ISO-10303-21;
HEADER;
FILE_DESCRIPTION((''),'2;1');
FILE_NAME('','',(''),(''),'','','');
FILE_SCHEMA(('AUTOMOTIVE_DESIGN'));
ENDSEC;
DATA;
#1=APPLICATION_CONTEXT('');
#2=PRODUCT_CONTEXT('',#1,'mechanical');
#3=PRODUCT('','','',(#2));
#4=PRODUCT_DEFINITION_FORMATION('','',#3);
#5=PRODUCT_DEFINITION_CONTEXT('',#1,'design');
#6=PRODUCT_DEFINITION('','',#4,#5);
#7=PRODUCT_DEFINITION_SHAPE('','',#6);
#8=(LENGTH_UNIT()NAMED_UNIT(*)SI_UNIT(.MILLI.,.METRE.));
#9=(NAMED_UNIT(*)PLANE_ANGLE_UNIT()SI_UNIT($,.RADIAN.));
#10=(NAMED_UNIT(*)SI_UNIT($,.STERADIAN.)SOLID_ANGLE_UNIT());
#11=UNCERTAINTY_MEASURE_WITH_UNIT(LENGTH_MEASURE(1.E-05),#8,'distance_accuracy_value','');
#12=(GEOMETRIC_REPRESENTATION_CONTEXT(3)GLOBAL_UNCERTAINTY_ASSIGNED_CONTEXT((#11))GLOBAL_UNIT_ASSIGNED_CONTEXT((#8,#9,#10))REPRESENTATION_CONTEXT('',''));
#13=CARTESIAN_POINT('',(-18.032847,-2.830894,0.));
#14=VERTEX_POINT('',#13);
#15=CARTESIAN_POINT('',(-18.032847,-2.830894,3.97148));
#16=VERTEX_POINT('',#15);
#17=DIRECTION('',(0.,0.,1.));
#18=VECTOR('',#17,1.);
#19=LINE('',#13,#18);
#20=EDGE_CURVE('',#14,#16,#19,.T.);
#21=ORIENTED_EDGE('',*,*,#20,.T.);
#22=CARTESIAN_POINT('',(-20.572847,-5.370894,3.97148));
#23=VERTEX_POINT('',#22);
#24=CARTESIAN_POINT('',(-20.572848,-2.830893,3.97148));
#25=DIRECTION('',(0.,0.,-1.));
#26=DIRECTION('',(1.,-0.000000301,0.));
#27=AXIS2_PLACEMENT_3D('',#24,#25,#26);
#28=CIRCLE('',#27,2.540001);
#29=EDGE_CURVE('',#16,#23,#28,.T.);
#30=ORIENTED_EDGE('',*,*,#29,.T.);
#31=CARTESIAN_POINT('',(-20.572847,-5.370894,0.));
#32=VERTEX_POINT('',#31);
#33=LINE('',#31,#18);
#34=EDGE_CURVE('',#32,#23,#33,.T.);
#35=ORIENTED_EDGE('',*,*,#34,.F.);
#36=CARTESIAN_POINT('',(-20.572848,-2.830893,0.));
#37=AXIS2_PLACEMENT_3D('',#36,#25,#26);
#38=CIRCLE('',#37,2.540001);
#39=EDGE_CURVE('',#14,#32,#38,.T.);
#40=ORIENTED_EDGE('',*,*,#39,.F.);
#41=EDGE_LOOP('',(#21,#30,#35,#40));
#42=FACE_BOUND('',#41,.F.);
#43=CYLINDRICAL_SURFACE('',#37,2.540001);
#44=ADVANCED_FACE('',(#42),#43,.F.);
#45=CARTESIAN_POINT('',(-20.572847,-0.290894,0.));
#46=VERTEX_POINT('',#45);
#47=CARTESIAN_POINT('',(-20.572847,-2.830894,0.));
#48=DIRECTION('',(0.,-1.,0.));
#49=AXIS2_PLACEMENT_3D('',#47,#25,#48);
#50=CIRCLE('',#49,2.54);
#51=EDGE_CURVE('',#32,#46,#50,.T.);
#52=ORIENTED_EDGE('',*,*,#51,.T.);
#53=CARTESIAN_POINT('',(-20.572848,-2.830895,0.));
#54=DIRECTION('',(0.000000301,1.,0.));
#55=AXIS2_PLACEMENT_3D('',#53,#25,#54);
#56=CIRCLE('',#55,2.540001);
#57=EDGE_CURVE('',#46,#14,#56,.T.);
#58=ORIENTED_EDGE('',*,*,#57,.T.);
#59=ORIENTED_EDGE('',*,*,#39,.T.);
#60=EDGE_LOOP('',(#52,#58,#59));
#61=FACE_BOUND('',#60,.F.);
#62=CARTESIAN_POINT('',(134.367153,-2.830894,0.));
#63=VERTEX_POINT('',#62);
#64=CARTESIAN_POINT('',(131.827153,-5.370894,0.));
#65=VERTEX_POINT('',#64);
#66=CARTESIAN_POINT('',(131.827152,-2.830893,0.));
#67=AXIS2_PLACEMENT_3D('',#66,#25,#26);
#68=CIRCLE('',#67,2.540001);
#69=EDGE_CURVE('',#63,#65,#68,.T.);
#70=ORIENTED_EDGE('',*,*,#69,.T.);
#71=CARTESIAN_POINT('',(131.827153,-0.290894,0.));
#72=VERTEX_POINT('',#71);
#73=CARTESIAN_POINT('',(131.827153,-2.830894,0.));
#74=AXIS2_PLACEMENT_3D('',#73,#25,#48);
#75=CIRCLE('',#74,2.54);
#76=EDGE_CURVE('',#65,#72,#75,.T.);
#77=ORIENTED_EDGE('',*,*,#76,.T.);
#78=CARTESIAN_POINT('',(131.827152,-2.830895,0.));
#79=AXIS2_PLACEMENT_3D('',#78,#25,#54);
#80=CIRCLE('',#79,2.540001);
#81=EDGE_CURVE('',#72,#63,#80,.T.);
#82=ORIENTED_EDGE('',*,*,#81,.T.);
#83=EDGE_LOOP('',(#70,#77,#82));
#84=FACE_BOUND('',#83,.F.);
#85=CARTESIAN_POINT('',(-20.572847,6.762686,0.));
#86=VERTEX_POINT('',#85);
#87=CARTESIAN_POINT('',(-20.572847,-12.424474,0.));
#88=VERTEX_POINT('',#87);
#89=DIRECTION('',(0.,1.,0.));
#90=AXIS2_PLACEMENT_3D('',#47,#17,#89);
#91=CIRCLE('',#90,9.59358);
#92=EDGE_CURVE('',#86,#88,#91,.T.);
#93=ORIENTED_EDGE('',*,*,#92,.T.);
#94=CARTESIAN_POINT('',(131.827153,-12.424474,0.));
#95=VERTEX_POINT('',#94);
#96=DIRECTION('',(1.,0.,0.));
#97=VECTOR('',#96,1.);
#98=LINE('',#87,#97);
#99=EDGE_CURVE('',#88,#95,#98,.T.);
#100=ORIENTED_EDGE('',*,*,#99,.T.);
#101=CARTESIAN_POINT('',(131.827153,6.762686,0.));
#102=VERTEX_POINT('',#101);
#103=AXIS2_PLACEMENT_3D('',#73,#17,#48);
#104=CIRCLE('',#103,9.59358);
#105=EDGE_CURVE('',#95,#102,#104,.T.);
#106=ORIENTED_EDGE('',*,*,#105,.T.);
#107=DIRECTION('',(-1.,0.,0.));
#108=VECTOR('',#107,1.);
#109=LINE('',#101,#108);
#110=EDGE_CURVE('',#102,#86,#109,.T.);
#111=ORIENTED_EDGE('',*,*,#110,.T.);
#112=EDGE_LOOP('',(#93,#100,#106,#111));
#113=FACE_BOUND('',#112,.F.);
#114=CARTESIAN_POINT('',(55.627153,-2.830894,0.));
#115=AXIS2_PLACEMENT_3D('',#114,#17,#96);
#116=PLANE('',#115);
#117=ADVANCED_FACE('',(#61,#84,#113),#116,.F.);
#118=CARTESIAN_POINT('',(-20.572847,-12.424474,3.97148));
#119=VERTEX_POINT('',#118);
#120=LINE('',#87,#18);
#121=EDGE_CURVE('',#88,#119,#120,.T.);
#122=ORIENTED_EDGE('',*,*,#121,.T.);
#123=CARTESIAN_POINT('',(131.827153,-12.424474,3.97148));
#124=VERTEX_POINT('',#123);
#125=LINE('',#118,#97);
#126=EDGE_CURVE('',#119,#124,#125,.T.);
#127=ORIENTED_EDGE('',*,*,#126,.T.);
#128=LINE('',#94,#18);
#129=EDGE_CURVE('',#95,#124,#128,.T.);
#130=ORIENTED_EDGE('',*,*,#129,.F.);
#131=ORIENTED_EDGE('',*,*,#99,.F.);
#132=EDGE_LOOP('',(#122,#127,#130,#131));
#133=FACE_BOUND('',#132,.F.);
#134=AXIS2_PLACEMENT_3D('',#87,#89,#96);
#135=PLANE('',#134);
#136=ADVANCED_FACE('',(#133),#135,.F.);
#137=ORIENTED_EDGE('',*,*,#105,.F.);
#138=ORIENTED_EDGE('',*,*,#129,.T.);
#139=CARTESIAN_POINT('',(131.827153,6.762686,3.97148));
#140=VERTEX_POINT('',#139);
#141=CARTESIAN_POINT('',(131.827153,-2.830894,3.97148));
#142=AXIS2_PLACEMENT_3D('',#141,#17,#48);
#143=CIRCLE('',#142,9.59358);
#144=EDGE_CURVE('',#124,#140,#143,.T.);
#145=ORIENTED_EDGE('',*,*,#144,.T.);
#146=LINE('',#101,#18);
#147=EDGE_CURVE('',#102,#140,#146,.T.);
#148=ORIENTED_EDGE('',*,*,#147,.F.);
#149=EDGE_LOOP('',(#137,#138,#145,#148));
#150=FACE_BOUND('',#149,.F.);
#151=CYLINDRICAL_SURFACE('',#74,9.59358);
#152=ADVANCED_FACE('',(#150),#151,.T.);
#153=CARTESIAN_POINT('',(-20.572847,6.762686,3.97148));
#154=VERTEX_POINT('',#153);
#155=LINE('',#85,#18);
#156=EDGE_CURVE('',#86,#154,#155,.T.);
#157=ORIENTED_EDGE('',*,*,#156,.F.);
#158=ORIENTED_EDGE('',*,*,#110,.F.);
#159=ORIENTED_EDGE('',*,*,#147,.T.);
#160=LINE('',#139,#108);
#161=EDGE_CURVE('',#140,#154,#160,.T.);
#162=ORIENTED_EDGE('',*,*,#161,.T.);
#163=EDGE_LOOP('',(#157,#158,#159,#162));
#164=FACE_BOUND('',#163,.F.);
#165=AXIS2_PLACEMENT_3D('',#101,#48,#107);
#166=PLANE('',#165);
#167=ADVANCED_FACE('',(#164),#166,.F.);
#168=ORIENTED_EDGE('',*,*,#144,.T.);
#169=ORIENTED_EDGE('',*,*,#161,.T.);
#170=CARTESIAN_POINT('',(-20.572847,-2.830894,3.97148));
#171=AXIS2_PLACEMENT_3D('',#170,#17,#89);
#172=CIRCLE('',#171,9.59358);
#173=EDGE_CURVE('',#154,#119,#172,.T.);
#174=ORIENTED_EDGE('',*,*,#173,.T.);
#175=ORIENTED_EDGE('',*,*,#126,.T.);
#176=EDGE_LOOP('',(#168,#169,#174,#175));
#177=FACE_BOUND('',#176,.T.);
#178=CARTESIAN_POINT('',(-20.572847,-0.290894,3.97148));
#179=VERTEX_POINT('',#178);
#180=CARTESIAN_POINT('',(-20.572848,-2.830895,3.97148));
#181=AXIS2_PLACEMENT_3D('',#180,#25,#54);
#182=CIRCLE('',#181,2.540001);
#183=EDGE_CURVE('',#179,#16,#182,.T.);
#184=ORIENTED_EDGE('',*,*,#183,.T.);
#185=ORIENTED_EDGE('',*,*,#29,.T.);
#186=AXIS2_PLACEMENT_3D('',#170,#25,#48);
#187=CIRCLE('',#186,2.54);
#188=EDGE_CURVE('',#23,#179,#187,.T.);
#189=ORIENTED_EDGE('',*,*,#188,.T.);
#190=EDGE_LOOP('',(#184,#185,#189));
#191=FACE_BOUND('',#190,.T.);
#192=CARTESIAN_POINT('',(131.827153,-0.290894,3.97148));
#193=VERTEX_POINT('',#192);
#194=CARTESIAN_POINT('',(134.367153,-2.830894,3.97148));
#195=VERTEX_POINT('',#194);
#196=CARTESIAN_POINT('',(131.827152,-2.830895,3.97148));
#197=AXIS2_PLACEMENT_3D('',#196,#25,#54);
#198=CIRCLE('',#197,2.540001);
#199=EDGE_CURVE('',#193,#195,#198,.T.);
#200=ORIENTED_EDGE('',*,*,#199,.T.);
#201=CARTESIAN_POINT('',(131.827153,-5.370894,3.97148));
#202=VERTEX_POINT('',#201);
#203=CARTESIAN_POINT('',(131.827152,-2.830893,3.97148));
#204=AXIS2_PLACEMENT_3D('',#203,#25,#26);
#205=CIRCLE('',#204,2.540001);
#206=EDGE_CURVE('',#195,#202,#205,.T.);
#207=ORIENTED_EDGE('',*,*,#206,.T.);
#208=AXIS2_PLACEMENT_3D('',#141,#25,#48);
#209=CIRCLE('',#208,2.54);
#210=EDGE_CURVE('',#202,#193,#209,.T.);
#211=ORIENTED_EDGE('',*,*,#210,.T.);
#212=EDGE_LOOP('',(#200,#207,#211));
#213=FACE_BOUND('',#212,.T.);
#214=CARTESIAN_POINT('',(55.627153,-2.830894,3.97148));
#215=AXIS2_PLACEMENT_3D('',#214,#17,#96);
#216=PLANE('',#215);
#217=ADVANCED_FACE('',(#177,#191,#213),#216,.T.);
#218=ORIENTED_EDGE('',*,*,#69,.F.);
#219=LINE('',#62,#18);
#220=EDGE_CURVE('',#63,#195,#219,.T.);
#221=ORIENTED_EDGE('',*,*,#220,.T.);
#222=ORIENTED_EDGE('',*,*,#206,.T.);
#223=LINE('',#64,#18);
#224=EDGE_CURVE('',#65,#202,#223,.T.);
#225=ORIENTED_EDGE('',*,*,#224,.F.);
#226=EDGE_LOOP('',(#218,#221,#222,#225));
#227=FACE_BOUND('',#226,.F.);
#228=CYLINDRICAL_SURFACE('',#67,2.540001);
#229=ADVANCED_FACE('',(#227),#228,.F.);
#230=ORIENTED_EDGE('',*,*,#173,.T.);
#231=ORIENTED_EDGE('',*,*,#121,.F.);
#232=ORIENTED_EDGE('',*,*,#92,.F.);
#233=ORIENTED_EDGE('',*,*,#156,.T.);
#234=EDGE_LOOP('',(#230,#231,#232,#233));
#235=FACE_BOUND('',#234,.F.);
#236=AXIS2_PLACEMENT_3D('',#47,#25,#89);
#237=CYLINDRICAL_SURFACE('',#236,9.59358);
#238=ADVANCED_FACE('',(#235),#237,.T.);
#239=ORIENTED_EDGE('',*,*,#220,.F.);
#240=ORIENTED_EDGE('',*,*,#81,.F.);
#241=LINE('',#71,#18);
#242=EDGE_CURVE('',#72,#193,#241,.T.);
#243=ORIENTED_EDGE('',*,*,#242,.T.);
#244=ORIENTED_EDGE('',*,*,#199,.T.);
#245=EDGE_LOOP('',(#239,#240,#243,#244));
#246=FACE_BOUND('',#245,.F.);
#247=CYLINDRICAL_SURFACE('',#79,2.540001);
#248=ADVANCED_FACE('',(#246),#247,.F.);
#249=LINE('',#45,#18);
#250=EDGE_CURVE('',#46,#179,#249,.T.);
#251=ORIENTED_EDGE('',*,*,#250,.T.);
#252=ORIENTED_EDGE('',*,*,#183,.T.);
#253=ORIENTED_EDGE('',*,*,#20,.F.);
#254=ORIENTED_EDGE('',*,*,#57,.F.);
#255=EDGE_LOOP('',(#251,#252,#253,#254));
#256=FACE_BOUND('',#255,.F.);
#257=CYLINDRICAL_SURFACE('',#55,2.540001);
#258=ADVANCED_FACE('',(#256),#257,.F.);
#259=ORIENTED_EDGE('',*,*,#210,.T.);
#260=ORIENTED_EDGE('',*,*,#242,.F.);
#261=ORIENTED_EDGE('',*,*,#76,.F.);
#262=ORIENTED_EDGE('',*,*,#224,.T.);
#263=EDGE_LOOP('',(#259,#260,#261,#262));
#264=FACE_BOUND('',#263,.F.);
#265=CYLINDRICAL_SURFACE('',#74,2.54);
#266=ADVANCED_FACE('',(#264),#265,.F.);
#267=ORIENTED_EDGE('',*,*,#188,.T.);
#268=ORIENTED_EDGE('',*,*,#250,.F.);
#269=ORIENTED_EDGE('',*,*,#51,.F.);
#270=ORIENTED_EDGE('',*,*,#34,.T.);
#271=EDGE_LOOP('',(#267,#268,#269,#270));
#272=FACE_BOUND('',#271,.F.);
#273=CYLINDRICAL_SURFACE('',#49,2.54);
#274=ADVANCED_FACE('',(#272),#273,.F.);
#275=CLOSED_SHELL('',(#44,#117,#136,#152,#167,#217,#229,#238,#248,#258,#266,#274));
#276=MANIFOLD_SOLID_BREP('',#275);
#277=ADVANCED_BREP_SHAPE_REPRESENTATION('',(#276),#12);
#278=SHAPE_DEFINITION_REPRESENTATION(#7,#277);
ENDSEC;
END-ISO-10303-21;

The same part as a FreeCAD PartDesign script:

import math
import FreeCAD as App
import Part
import Sketcher
from FreeCAD import Vector
Q = App.Units.Quantity

doc = App.newDocument("Part")
body = doc.addObject("PartDesign::Body", "Body")

# Sketch on XY plane
sketch1 = body.newObject("Sketcher::SketchObject", "Sketch")
sketch1.AttachmentSupport = (doc.getObject("XY_Plane"), [""])
sketch1.MapMode = "FlatFace"
sketch1.addGeometry([
    Part.LineSegment(Vector(131.8, 6.8, 0), Vector(-20.6, 6.8, 0)),  # 0
    Part.ArcOfCircle(Part.Circle(Vector(-20.6, -2.8, 0), Vector(0, 0, 1), 9.6), math.radians(90), math.radians(270)),  # 1
    Part.LineSegment(Vector(-20.6, -12.4, 0), Vector(131.8, -12.4, 0)),  # 2
    Part.ArcOfCircle(Part.Circle(Vector(131.8, -2.8, 0), Vector(0, 0, 1), 9.6), math.radians(-90), math.radians(90)),  # 3
    Part.ArcOfCircle(Part.Circle(Vector(-20.6, -2.8, 0), Vector(0, 0, 1), 2.5), math.radians(-90), math.radians(0)),  # 4
    Part.ArcOfCircle(Part.Circle(Vector(-20.6, -2.8, 0), Vector(0, 0, 1), 2.5), math.radians(90), math.radians(270)),  # 5
    Part.ArcOfCircle(Part.Circle(Vector(-20.6, -2.8, 0), Vector(0, 0, 1), 2.5), math.radians(0), math.radians(90)),  # 6
    Part.ArcOfCircle(Part.Circle(Vector(131.8, -2.8, 0), Vector(0, 0, 1), 2.5), math.radians(-90), math.radians(0)),  # 7
    Part.ArcOfCircle(Part.Circle(Vector(131.8, -2.8, 0), Vector(0, 0, 1), 2.5), math.radians(90), math.radians(270)),  # 8
    Part.ArcOfCircle(Part.Circle(Vector(131.8, -2.8, 0), Vector(0, 0, 1), 2.5), math.radians(0), math.radians(90)),  # 9
], False)
sketch1.addConstraint([
    Sketcher.Constraint("Tangent", 0, 2, 1, 1),
    Sketcher.Constraint("Tangent", 1, 2, 2, 1),
    Sketcher.Constraint("Tangent", 2, 2, 3, 1),
    Sketcher.Constraint("Tangent", 3, 2, 0, 1),
    Sketcher.Constraint("Tangent", 4, 1, 5, 2),
    Sketcher.Constraint("Tangent", 5, 1, 6, 2),
    Sketcher.Constraint("Tangent", 6, 1, 4, 2),
    Sketcher.Constraint("Tangent", 7, 1, 8, 2),
    Sketcher.Constraint("Tangent", 8, 1, 9, 2),
    Sketcher.Constraint("Tangent", 9, 1, 7, 2),
    Sketcher.Constraint("Horizontal", 0),
    Sketcher.Constraint("Horizontal", 2),
    Sketcher.Constraint("Coincident", 4, 3, 1, 3),
    Sketcher.Constraint("Coincident", 7, 3, 3, 3),
    Sketcher.Constraint("Equal", 6, 7),
    Sketcher.Constraint("Horizontal", 9, 3, 6, 1),
    Sketcher.Constraint("Horizontal", 6, 1, 9, 1),
    Sketcher.Constraint("Vertical", 1, 2, 4, 1),
    Sketcher.Constraint("Vertical", 4, 1, 5, 1),
    Sketcher.Constraint("Vertical", 3, 2, 7, 1),
    Sketcher.Constraint("Vertical", 7, 1, 8, 1),
    Sketcher.Constraint("Radius", 4, Q("0.1 in")),
    Sketcher.Constraint("DistanceX", 0, 2, 0, 1, Q("6 in")),
    Sketcher.Constraint("Radius", 1, Q("0.3777 in")),
    Sketcher.Constraint("DistanceX", 1, 3, -1, 1, 20.572847),
    Sketcher.Constraint("DistanceY", 1, 3, -1, 1, 2.830894),
])
pad1 = body.newObject("PartDesign::Pad", "Pad")
pad1.Profile = sketch1
pad1.Length = 3.97148

doc.recompute()
